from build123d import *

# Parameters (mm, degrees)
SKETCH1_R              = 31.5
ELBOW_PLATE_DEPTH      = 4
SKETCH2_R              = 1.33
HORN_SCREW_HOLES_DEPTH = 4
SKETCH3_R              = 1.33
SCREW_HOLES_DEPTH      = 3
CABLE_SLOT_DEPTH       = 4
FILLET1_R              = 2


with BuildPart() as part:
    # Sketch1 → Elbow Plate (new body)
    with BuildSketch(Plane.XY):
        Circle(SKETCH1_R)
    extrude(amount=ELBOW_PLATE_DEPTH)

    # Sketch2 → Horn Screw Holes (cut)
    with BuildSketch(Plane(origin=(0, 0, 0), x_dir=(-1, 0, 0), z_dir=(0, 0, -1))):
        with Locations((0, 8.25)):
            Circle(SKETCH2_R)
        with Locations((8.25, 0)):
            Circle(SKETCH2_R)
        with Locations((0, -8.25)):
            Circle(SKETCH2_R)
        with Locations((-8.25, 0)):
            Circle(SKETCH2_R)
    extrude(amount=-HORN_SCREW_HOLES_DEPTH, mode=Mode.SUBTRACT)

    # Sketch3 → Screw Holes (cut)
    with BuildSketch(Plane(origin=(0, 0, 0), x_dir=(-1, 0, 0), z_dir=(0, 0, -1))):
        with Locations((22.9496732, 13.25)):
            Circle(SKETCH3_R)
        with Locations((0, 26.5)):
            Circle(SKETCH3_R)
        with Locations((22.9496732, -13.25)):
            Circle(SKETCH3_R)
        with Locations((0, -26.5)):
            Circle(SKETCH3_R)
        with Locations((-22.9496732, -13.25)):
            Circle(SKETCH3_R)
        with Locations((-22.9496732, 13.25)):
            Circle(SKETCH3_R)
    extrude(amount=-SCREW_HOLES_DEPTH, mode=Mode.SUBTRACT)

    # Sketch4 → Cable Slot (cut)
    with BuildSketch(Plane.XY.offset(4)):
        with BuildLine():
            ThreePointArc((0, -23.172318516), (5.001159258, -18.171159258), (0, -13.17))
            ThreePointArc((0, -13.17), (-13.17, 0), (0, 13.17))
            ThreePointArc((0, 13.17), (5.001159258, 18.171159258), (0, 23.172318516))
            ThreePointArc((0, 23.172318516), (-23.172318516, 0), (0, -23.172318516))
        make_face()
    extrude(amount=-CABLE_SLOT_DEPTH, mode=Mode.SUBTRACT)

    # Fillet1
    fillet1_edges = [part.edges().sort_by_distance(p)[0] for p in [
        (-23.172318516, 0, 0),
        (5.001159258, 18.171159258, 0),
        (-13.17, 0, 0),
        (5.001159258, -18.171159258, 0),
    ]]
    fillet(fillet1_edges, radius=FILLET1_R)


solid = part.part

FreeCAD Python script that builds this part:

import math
import FreeCAD as App
import Part
import Sketcher
Q = App.Units.Quantity


def edges_at(feature, points):
    """Names of the edges that pass closest to the given points."""
    edges = feature.Shape.Edges
    near = lambda p: min(range(len(edges)), key=lambda i: edges[i].distToShape(Part.Vertex(*p))[0])
    return sorted({f"Edge{near(p) + 1}" for p in points})

doc = App.newDocument("Part")
body = doc.addObject("PartDesign::Body", "Body")

sketch1 = body.newObject("Sketcher::SketchObject", "Sketch")
sketch1.AttachmentSupport = (doc.getObject("XY_Plane"), [""])
sketch1.MapMode = "FlatFace"
sketch1.addGeometry(Part.Circle(App.Vector(0, 0, 0), App.Vector(0, 0, 1), 32), False)
sketch1.addConstraint([
    Sketcher.Constraint("Coincident", 0, 3, -1, 1),
    Sketcher.Constraint("Diameter", 0, Q("63 mm")),
])
pad1 = body.newObject("PartDesign::Pad", "Pad")
pad1.Profile = sketch1
pad1.Length = 4

sketch2 = body.newObject("Sketcher::SketchObject", "Sketch001")
sketch2.AttachmentSupport = (doc.getObject("XY_Plane"), [""])
sketch2.MapMode = "FlatFace"
sketch2.addGeometry([
    Part.Circle(App.Vector(0, 8.2, 0), App.Vector(0, 0, 1), 1.3),
    Part.Circle(App.Vector(-8.2, 0, 0), App.Vector(0, 0, 1), 1.3),
    Part.Circle(App.Vector(0, -8.2, 0), App.Vector(0, 0, 1), 1.3),
    Part.Circle(App.Vector(8.2, 0, 0), App.Vector(0, 0, 1), 1.3),
], False)
sketch2.addConstraint([
    Sketcher.Constraint("Equal", 0, 1),
    Sketcher.Constraint("Equal", 1, 2),
    Sketcher.Constraint("Equal", 2, 3),
    Sketcher.Constraint("Symmetric", 0, 3, 2, 3, -1, 1),
    Sketcher.Constraint("Symmetric", 1, 3, 3, 3, -1, 1),
    Sketcher.Constraint("PointOnObject", 0, 3, -2),
    Sketcher.Constraint("PointOnObject", 1, 3, -1),
    Sketcher.Constraint("Diameter", 0, Q("2.66 mm")),
    Sketcher.Constraint("DistanceY", 2, 3, 0, 3, Q("16.5 mm")),
    Sketcher.Constraint("DistanceX", 1, 3, 3, 3, Q("16.5 mm")),
])
pocket1 = body.newObject("PartDesign::Pocket", "Pocket")
pocket1.Profile = sketch2
pocket1.Length = 4
pocket1.Reversed = True

sketch3 = body.newObject("Sketcher::SketchObject", "Sketch002")
sketch3.AttachmentSupport = (doc.getObject("XY_Plane"), [""])
sketch3.MapMode = "FlatFace"
sketch3.addGeometry([
    Part.Circle(App.Vector(-22.9, 13.2, 0), App.Vector(0, 0, 1), 1.3),
    Part.Circle(App.Vector(0, 26.5, 0), App.Vector(0, 0, 1), 1.3),
    Part.Circle(App.Vector(-22.9, -13.2, 0), App.Vector(0, 0, 1), 1.3),
    Part.Circle(App.Vector(0, -26.5, 0), App.Vector(0, 0, 1), 1.3),
    Part.Circle(App.Vector(22.9, -13.2, 0), App.Vector(0, 0, 1), 1.3),
    Part.Circle(App.Vector(22.9, 13.2, 0), App.Vector(0, 0, 1), 1.3),
], False)
sketch3.addConstraint([
    Sketcher.Constraint("Equal", 0, 1),
    Sketcher.Constraint("Equal", 1, 2),
    Sketcher.Constraint("Equal", 2, 3),
    Sketcher.Constraint("Equal", 3, 4),
    Sketcher.Constraint("Equal", 4, 5),
    Sketcher.Constraint("Symmetric", 1, 3, 3, 3, -1, 1),
    Sketcher.Constraint("Symmetric", 0, 3, 4, 3, -1, 1),
    Sketcher.Constraint("Symmetric", 2, 3, 5, 3, -1, 1),
    Sketcher.Constraint("Symmetric", 2, 3, 4, 3, -2),
    Sketcher.Constraint("PointOnObject", 1, 3, -2),
    Sketcher.Constraint("Diameter", 0, Q("2.66 mm")),
    Sketcher.Constraint("DistanceY", 3, 3, 1, 3, Q("53 mm")),
    Sketcher.Constraint("DistanceY", 2, 3, 0, 3, Q("26.5 mm")),
    Sketcher.Constraint("DistanceX", 0, 3, -1, 1, Q("22.949673 mm")),
])
pocket2 = body.newObject("PartDesign::Pocket", "Pocket001")
pocket2.Profile = sketch3
pocket2.Length = 3
pocket2.Reversed = True

sketch4 = body.newObject("Sketcher::SketchObject", "Sketch003")
sketch4.AttachmentSupport = (doc.getObject("XY_Plane"), [""])
sketch4.MapMode = "FlatFace"
sketch4.AttachmentOffset = App.Placement(App.Vector(0, 0, 4), App.Rotation())
sketch4.addGeometry([
    Part.ArcOfCircle(Part.Circle(App.Vector(0, -18, 0), App.Vector(0, 0, 1), 5), math.radians(-90), math.radians(90)),
    Part.ArcOfCircle(Part.Circle(App.Vector(0, 0, 0), App.Vector(0, 0, 1), 13), math.radians(90), math.radians(270)),
    Part.ArcOfCircle(Part.Circle(App.Vector(0, 18, 0), App.Vector(0, 0, 1), 5), math.radians(-90), math.radians(90)),
    Part.ArcOfCircle(Part.Circle(App.Vector(0, 0, 0), App.Vector(0, 0, 1), 23), math.radians(90), math.radians(270)),
], False)
sketch4.addConstraint([
    Sketcher.Constraint("Tangent", 0, 2, 1, 2),
    Sketcher.Constraint("Tangent", 1, 1, 2, 1),
    Sketcher.Constraint("Tangent", 2, 2, 3, 1),
    Sketcher.Constraint("Tangent", 3, 2, 0, 1),
    Sketcher.Constraint("Coincident", 1, 3, -1, 1),
    Sketcher.Constraint("Coincident", 3, 3, -1, 1),
    Sketcher.Constraint("PointOnObject", 0, 3, -2),
    Sketcher.Constraint("PointOnObject", 2, 3, -2),
    Sketcher.Constraint("Radius", 1, Q("13.17 mm")),
    Sketcher.Constraint("Radius", 0, Q("5.001159 mm")),
])
pocket3 = body.newObject("PartDesign::Pocket", "Pocket002")
pocket3.Profile = sketch4
pocket3.Length = 4
doc.recompute()

fillet = body.newObject("PartDesign::Fillet", "Fillet")
fillet.Base = (pocket3, edges_at(pocket3, [
    (-23.172, 0, 0),
    (5.001, 18.171, 0),
    (-13.17, 0, 0),
    (5.001, -18.171, 0),
]))
fillet.Radius = 2

doc.recompute()
